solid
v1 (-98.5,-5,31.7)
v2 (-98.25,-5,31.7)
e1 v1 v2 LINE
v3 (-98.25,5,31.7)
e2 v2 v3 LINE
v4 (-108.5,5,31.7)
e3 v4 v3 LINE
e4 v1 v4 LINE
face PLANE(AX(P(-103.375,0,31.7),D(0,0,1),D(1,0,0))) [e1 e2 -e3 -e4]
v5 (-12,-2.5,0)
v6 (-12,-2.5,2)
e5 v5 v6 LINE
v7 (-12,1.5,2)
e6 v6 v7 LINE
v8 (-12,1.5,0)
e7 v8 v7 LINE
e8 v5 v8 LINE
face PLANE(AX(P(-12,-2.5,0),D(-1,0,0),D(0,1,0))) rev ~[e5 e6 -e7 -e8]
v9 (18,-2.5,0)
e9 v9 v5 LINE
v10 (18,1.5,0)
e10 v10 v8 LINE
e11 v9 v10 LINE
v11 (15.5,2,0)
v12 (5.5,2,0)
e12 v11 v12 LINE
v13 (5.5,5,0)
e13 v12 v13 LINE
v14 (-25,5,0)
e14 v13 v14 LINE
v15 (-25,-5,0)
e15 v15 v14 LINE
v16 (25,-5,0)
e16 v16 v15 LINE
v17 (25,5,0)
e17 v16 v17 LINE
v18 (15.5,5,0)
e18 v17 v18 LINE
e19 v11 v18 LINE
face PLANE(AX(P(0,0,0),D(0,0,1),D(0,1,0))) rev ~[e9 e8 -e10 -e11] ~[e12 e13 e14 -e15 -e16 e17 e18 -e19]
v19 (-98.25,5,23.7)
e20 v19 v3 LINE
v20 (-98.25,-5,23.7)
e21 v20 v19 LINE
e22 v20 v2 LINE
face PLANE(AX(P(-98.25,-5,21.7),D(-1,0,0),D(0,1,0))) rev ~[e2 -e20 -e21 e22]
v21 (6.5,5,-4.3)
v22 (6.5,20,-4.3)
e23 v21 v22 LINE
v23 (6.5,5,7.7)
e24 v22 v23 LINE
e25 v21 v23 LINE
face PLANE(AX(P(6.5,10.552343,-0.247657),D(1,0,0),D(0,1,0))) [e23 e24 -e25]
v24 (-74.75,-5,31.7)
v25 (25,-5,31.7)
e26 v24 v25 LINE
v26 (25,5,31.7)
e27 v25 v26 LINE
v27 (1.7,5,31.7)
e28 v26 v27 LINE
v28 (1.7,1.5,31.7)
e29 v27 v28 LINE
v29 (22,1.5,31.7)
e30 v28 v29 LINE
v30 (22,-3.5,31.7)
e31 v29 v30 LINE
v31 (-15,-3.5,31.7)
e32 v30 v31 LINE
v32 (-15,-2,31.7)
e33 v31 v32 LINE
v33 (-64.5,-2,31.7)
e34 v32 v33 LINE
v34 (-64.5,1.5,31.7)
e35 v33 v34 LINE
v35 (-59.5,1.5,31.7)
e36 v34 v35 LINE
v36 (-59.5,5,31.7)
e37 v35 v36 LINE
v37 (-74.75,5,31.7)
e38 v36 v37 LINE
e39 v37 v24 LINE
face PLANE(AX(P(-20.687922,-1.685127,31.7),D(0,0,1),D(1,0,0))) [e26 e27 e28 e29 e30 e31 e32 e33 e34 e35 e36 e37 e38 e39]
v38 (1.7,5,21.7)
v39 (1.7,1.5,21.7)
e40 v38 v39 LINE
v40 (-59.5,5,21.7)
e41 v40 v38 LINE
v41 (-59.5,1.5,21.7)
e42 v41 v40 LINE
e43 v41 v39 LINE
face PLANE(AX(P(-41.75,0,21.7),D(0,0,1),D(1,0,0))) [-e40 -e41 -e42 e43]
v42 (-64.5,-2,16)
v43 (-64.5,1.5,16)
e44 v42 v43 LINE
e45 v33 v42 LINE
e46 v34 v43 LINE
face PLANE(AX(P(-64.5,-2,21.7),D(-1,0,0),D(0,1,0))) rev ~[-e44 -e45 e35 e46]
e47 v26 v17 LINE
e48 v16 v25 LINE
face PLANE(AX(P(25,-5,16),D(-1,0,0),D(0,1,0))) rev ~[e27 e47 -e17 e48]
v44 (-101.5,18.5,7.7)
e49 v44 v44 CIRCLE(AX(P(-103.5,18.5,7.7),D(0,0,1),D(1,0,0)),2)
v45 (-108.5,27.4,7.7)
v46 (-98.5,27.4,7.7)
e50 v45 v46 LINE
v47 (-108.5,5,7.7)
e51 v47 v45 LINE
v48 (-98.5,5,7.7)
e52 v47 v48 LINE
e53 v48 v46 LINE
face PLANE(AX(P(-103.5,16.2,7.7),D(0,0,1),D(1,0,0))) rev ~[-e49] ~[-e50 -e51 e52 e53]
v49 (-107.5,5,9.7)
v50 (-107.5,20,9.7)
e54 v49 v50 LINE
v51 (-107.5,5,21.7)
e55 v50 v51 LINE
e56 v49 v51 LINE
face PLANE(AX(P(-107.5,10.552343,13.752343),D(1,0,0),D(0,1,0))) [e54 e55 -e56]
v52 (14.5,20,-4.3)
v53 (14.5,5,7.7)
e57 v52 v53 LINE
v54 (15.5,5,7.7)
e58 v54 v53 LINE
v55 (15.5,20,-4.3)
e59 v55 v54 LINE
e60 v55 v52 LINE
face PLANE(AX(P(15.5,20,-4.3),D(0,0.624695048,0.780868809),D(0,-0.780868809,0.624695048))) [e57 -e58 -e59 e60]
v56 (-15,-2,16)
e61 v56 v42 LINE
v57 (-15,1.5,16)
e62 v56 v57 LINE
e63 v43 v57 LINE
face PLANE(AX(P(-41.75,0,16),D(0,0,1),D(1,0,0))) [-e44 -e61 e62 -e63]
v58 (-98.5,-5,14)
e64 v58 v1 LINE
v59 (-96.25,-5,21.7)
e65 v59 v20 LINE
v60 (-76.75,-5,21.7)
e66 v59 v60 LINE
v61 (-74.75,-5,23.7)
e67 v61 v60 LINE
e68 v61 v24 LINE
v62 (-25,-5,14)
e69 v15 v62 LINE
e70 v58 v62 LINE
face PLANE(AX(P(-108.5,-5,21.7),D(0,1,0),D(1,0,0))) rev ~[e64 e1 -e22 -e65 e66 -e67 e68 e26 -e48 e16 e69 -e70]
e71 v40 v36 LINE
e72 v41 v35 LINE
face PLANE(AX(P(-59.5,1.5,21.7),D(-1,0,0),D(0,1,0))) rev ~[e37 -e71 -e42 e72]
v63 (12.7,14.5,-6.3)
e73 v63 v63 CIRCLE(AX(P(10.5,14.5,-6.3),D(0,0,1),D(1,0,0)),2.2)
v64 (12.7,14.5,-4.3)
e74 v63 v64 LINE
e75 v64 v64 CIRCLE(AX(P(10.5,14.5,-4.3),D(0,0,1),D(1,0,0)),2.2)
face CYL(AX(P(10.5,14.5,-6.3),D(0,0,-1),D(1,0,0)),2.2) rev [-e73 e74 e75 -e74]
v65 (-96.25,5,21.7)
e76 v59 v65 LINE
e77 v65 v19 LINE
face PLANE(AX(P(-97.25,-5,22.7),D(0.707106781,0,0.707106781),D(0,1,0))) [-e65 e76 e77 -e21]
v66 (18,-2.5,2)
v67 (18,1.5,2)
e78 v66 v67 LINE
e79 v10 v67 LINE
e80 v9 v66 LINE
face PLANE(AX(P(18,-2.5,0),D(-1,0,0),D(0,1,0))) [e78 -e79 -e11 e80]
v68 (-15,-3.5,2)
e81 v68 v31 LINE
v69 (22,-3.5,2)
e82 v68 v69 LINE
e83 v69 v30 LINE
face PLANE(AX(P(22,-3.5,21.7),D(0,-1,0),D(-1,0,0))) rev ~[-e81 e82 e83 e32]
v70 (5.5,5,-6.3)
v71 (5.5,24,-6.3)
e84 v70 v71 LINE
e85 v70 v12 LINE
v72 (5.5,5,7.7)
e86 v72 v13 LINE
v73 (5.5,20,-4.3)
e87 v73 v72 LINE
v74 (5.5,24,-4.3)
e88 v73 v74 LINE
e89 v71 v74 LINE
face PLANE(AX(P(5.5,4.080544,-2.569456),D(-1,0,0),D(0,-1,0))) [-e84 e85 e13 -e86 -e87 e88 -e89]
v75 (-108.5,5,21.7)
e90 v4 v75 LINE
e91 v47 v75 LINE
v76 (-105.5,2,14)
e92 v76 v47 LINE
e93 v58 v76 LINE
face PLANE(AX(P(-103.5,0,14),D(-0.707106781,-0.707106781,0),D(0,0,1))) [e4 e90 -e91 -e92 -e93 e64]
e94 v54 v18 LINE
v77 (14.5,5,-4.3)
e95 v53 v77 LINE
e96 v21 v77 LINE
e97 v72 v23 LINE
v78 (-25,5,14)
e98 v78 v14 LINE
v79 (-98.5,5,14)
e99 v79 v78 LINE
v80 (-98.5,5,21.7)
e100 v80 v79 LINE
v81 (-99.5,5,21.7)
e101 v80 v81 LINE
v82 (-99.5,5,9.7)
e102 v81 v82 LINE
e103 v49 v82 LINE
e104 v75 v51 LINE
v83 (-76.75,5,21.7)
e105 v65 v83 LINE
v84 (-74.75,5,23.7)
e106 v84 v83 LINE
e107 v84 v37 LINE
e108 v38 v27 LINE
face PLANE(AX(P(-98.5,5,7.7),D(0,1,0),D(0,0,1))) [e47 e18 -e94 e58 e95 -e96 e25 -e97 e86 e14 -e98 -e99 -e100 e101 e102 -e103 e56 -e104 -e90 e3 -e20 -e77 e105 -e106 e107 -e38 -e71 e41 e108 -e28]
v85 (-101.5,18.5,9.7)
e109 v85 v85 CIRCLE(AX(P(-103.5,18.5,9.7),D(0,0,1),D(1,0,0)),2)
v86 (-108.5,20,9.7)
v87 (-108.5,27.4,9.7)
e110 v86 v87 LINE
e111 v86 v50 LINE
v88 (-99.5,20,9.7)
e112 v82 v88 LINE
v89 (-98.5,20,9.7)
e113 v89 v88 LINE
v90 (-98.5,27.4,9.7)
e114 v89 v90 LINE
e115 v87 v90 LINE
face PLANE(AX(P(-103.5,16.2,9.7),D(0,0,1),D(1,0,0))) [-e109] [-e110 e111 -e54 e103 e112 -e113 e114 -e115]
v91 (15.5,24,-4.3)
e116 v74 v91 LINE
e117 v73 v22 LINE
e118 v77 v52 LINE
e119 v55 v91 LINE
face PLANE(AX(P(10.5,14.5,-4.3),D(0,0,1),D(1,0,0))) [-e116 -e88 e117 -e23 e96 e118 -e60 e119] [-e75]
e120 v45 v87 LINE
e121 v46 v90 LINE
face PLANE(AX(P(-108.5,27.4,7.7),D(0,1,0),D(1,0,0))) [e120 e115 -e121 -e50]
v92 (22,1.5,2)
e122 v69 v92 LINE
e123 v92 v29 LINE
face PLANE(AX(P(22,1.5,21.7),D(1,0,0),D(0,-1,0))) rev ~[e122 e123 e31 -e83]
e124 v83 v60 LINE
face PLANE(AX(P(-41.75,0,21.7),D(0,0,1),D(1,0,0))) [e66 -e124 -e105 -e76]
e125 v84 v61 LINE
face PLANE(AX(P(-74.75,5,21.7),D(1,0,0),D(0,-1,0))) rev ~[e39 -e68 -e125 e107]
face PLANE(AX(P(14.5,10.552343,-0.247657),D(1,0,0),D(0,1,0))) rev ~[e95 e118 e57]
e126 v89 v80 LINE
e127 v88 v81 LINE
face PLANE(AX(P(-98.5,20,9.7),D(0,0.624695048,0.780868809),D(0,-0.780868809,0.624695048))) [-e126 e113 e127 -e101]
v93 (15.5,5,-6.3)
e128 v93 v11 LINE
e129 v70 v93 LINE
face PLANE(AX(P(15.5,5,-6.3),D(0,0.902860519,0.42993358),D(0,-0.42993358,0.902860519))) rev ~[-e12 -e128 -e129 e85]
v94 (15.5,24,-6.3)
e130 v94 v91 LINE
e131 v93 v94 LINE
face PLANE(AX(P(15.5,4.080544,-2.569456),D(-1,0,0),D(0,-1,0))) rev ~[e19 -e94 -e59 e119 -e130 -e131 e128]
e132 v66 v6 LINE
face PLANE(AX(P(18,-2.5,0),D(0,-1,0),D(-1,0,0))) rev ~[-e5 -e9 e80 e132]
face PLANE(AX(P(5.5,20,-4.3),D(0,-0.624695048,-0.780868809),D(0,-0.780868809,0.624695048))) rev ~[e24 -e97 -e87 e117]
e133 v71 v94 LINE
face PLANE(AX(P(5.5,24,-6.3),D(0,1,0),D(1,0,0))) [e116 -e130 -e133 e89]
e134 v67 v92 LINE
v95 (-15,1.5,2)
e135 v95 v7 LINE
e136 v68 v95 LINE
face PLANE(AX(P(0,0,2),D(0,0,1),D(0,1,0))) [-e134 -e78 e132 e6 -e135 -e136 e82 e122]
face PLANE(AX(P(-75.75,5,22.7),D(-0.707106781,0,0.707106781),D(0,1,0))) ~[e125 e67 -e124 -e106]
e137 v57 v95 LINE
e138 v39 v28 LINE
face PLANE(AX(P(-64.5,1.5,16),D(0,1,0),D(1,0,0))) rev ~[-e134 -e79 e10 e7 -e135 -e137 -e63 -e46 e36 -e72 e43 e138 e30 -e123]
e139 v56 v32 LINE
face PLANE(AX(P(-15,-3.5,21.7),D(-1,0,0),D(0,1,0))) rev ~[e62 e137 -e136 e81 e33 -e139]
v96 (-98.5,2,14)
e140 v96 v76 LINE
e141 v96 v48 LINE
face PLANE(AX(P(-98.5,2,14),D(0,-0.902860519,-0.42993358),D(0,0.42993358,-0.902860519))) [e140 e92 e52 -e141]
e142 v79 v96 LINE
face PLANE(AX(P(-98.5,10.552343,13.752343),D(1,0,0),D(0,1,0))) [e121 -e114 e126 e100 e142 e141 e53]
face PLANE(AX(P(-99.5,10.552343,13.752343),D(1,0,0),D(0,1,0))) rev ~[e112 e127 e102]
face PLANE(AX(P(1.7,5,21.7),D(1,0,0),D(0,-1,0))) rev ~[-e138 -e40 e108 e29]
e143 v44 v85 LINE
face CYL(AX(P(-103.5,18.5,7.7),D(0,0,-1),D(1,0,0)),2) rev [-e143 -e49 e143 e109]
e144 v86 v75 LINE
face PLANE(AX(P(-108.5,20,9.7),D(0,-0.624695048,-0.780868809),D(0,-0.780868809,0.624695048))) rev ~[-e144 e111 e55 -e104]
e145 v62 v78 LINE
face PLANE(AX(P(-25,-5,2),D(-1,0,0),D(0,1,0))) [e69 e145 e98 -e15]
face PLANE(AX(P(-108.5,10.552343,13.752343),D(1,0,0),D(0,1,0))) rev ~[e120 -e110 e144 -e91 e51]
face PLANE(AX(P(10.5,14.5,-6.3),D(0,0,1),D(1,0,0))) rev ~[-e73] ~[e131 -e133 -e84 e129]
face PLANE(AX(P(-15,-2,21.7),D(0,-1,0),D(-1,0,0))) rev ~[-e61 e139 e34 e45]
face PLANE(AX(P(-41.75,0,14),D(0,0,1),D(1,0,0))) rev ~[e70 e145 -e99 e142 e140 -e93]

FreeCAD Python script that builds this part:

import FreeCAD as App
import Part
import Sketcher

V = App.Vector


def edges_at(feature, points):
    """Names of the edges that pass closest to the given points."""
    edges = feature.Shape.Edges
    near = lambda p: min(range(len(edges)), key=lambda i: edges[i].distToShape(Part.Vertex(*p))[0])
    return sorted({f"Edge{near(p) + 1}" for p in points})


def add_polygon(sketch, points):
    """Adds a closed chain of lines whose ends are joined by coincident constraints."""
    first, n = sketch.GeometryCount, len(points)
    for a, b in zip(points, points[1:] + points[:1]):
        sketch.addGeometry(Part.LineSegment(App.Vector(*a, 0), App.Vector(*b, 0)), False)
    for i in range(n):
        sketch.addConstraint(Sketcher.Constraint("Coincident", first + i, 2, first + (i + 1) % n, 1))

doc = App.newDocument("Part")
params = doc.addObject("Spreadsheet::Sheet", "Params")
for row, (alias, value) in enumerate([
    ("sketch1_width", "50 mm"),
    ("sketch1_width2", "30 mm"),
    ("sketch1_height", "10 mm"),
    ("sketch1_height2", "4 mm"),
    ("pad1_length", "2 mm"),
    ("sketch2_width", "50 mm"),
    ("sketch2_width2", "37 mm"),
    ("sketch2_height", "10 mm"),
    ("sketch2_height2", "5 mm"),
    ("pad2_length", "12 mm"),
    ("sketch3_width", "37 mm"),
    ("sketch3_height", "10 mm"),
    ("sketch3_height2", "5 mm"),
    ("sketch3_width2", "133.5 mm"),
    ("pad3_length", "2 mm"),
    ("sketch4_width", "37 mm"),
    ("sketch4_height", "10 mm"),
    ("sketch4_height2", "5 mm"),
    ("sketch4_width2", "133.5 mm"),
    ("sketch4_width3", "49.5 mm"),
    ("pad4_length", "5.7 mm"),
    ("sketch5_width", "5 mm"),
    ("sketch5_width2", "37 mm"),
    ("sketch5_height", "10 mm"),
    ("sketch5_width3", "23.3 mm"),
    ("sketch5_width4", "20.3 mm"),
    ("pad5_length", "10 mm"),
    ("chamfer_size", "2 mm"),
    ("sketch6_diameter", "4.4 mm"),
    ("sketch6_width", "10 mm"),
    ("sketch6_height", "19 mm"),
    ("pad6_length", "2 mm"),
    ("sketch7_diameter", "4 mm"),
    ("sketch7_width", "10 mm"),
    ("sketch7_height", "22.4 mm"),
    ("pad7_length", "2 mm"),
    ("sketch8_width", "15 mm"),
    ("sketch8_height", "12 mm"),
    ("pad8_length", "1 mm"),
    ("sketch9_width", "15 mm"),
    ("sketch9_height", "12 mm"),
    ("pad9_length", "1 mm"),
    ("sketch10_width", "15 mm"),
    ("sketch10_height", "12 mm"),
    ("pad10_length", "1 mm"),
    ("sketch11_width", "15 mm"),
    ("sketch11_height", "12 mm"),
    ("pad11_length", "1 mm"),
    ("sketch12_width", "3 mm"),
    ("sketch12_height", "6.3 mm"),
    ("pad12_length", "10 mm"),
    ("sketch13_width", "3 mm"),
    ("sketch13_height", "6.3 mm"),
    ("pad13_length", "10 mm"),
    ("chamfer2_size", "10 mm"),
], start=1):
    params.set(f"A{row}", alias)
    params.set(f"B{row}", "=" + value)
    params.setAlias(f"B{row}", alias)

body = doc.addObject("PartDesign::Body", "Body")

sketch1 = body.newObject("Sketcher::SketchObject", "Sketch")
sketch1.AttachmentSupport = (doc.getObject("XY_Plane"), [""])
sketch1.MapMode = "FlatFace"
add_polygon(sketch1, [(-25, -5), (25, -5), (25, 5), (-25, 5)])
add_polygon(sketch1, [(18, 1.5), (18, -2.5), (-12, -2.5), (-12, 1.5)])
sketch1.addConstraint(Sketcher.Constraint("Horizontal", 0))
sketch1.addConstraint(Sketcher.Constraint("Vertical", 1))
sketch1.addConstraint(Sketcher.Constraint("Horizontal", 2))
sketch1.addConstraint(Sketcher.Constraint("Vertical", 3))
sketch1.addConstraint(Sketcher.Constraint("Vertical", 4))
sketch1.addConstraint(Sketcher.Constraint("Horizontal", 5))
sketch1.addConstraint(Sketcher.Constraint("Vertical", 6))
sketch1.addConstraint(Sketcher.Constraint("Horizontal", 7))
sketch1.addConstraint(Sketcher.Constraint("Symmetric", 0, 2, 2, 2, -1, 1))
sketch1.addConstraint(Sketcher.Constraint("DistanceX", 0, 1, 0, 2, 50.0))
sketch1.addConstraint(Sketcher.Constraint("DistanceX", 5, 2, 5, 1, 30.0))
sketch1.addConstraint(Sketcher.Constraint("DistanceY", 1, 1, 1, 2, 10.0))
sketch1.addConstraint(Sketcher.Constraint("DistanceY", 4, 2, 4, 1, 4.0))
sketch1.addConstraint(Sketcher.Constraint("DistanceX", -1, 1, 4, 2, 18.0))
sketch1.addConstraint(Sketcher.Constraint("DistanceY", 4, 2, -1, 1, 2.5))
sketch1.setExpression("Constraints[17]", "Params.sketch1_width")
sketch1.setExpression("Constraints[18]", "Params.sketch1_width2")
sketch1.setExpression("Constraints[19]", "Params.sketch1_height")
sketch1.setExpression("Constraints[20]", "Params.sketch1_height2")
pad1 = body.newObject("PartDesign::Pad", "Pad")
pad1.Profile = sketch1
pad1.setExpression("Length", "Params.pad1_length")

sketch2 = body.newObject("Sketcher::SketchObject", "Sketch001")
sketch2.AttachmentSupport = (doc.getObject("XY_Plane"), [""])
sketch2.MapMode = "FlatFace"
sketch2.AttachmentOffset = App.Placement(V(0, 0, 2), App.Rotation())
add_polygon(sketch2, [(-25, 5), (-25, -5), (25, -5), (25, 5)])
add_polygon(sketch2, [(22, -4), (-15, -4), (-15, 2), (22, 2)])
sketch2.addConstraint(Sketcher.Constraint("Vertical", 0))
sketch2.addConstraint(Sketcher.Constraint("Horizontal", 1))
sketch2.addConstraint(Sketcher.Constraint("Vertical", 2))
sketch2.addConstraint(Sketcher.Constraint("Horizontal", 3))
sketch2.addConstraint(Sketcher.Constraint("Horizontal", 4))
sketch2.addConstraint(Sketcher.Constraint("Vertical", 5))
sketch2.addConstraint(Sketcher.Constraint("Horizontal", 6))
sketch2.addConstraint(Sketcher.Constraint("Vertical", 7))
sketch2.addConstraint(Sketcher.Constraint("Symmetric", 0, 2, 2, 2, -1, 1))
sketch2.addConstraint(Sketcher.Constraint("DistanceX", 1, 1, 1, 2, 50.0))
sketch2.addConstraint(Sketcher.Constraint("DistanceX", 4, 2, 4, 1, 37.0))
sketch2.addConstraint(Sketcher.Constraint("DistanceY", 0, 2, 0, 1, 10.0))
sketch2.addConstraint(Sketcher.Constraint("DistanceY", 5, 1, 5, 2, 5.0))
sketch2.addConstraint(Sketcher.Constraint("DistanceX", 4, 2, -1, 1, 15.0))
sketch2.addConstraint(Sketcher.Constraint("DistanceY", 4, 2, -1, 1, 3.5))
sketch2.setExpression("Constraints[17]", "Params.sketch2_width")
sketch2.setExpression("Constraints[18]", "Params.sketch2_width2")
sketch2.setExpression("Constraints[19]", "Params.sketch2_height")
sketch2.setExpression("Constraints[20]", "Params.sketch2_height2")
pad2 = body.newObject("PartDesign::Pad", "Pad001")
pad2.Profile = sketch2
pad2.setExpression("Length", "Params.pad2_length")

sketch3 = body.newObject("Sketcher::SketchObject", "Sketch002")
sketch3.AttachmentSupport = (doc.getObject("XY_Plane"), [""])
sketch3.MapMode = "FlatFace"
sketch3.AttachmentOffset = App.Placement(V(0, 0, 14), App.Rotation())
add_polygon(sketch3, [(-108, 5), (-108, -5), (25, -5), (25, 5)])
add_polygon(sketch3, [(22, -4), (-15, -4), (-15, 2), (22, 2)])
sketch3.addConstraint(Sketcher.Constraint("Vertical", 0))
sketch3.addConstraint(Sketcher.Constraint("Horizontal", 1))
sketch3.addConstraint(Sketcher.Constraint("Vertical", 2))
sketch3.addConstraint(Sketcher.Constraint("Horizontal", 3))
sketch3.addConstraint(Sketcher.Constraint("Horizontal", 4))
sketch3.addConstraint(Sketcher.Constraint("Vertical", 5))
sketch3.addConstraint(Sketcher.Constraint("Horizontal", 6))
sketch3.addConstraint(Sketcher.Constraint("Vertical", 7))
sketch3.addConstraint(Sketcher.Constraint("DistanceX", 4, 2, 4, 1, 37.0))
sketch3.addConstraint(Sketcher.Constraint("DistanceY", 0, 2, 0, 1, 10.0))
sketch3.addConstraint(Sketcher.Constraint("DistanceY", 5, 1, 5, 2, 5.0))
sketch3.addConstraint(Sketcher.Constraint("DistanceX", 1, 1, 1, 2, 133.5))
sketch3.addConstraint(Sketcher.Constraint("DistanceY", 0, 2, -1, 1, 5.0))
sketch3.addConstraint(Sketcher.Constraint("DistanceX", -1, 1, 1, 2, 25.0))
sketch3.addConstraint(Sketcher.Constraint("DistanceX", 4, 2, -1, 1, 15.0))
sketch3.addConstraint(Sketcher.Constraint("DistanceY", 4, 2, -1, 1, 3.5))
sketch3.setExpression("Constraints[16]", "Params.sketch3_width")
sketch3.setExpression("Constraints[17]", "Params.sketch3_height")
sketch3.setExpression("Constraints[18]", "Params.sketch3_height2")
sketch3.setExpression("Constraints[19]", "Params.sketch3_width2")
pad3 = body.newObject("PartDesign::Pad", "Pad002")
pad3.Profile = sketch3
pad3.setExpression("Length", "Params.pad3_length")

sketch4 = body.newObject("Sketcher::SketchObject", "Sketch003")
sketch4.AttachmentSupport = (doc.getObject("XY_Plane"), [""])
sketch4.MapMode = "FlatFace"
sketch4.AttachmentOffset = App.Placement(V(0, 0, 16), App.Rotation())
add_polygon(sketch4, [(-108.5, 5), (-108.5, -5), (25, -5), (25, 5)])
add_polygon(sketch4, [(22, 1.5), (22, -3.5), (-15, -3.5), (-15, -2), (-64.5, -2), (-64.5, 1.5)])
sketch4.addConstraint(Sketcher.Constraint("Vertical", 0))
sketch4.addConstraint(Sketcher.Constraint("Horizontal", 1))
sketch4.addConstraint(Sketcher.Constraint("Vertical", 2))
sketch4.addConstraint(Sketcher.Constraint("Horizontal", 3))
sketch4.addConstraint(Sketcher.Constraint("Vertical", 4))
sketch4.addConstraint(Sketcher.Constraint("Horizontal", 5))
sketch4.addConstraint(Sketcher.Constraint("Vertical", 6))
sketch4.addConstraint(Sketcher.Constraint("Horizontal", 7))
sketch4.addConstraint(Sketcher.Constraint("Vertical", 8))
sketch4.addConstraint(Sketcher.Constraint("Horizontal", 9))
sketch4.addConstraint(Sketcher.Constraint("DistanceX", 5, 2, 5, 1, 37.0))
sketch4.addConstraint(Sketcher.Constraint("DistanceY", 0, 2, 0, 1, 10.0))
sketch4.addConstraint(Sketcher.Constraint("DistanceY", 4, 2, 4, 1, 5.0))
sketch4.addConstraint(Sketcher.Constraint("DistanceX", 1, 1, 1, 2, 133.5))
sketch4.addConstraint(Sketcher.Constraint("DistanceX", 7, 2, 7, 1, 49.5))
sketch4.addConstraint(Sketcher.Constraint("DistanceY", 6, 1, 6, 2, 1.5))
sketch4.addConstraint(Sketcher.Constraint("DistanceY", 0, 2, -1, 1, 5.0))
sketch4.addConstraint(Sketcher.Constraint("DistanceX", -1, 1, 1, 2, 25.0))
sketch4.addConstraint(Sketcher.Constraint("DistanceX", -1, 1, 4, 2, 22.0))
sketch4.addConstraint(Sketcher.Constraint("DistanceY", 6, 2, -1, 1, 2.0))
sketch4.setExpression("Constraints[20]", "Params.sketch4_width")
sketch4.setExpression("Constraints[21]", "Params.sketch4_height")
sketch4.setExpression("Constraints[22]", "Params.sketch4_height2")
sketch4.setExpression("Constraints[23]", "Params.sketch4_width2")
sketch4.setExpression("Constraints[24]", "Params.sketch4_width3")
pad4 = body.newObject("PartDesign::Pad", "Pad003")
pad4.Profile = sketch4
pad4.setExpression("Length", "Params.pad4_length")

sketch5 = body.newObject("Sketcher::SketchObject", "Sketch004")
sketch5.AttachmentSupport = (doc.getObject("XY_Plane"), [""])
sketch5.MapMode = "FlatFace"
sketch5.AttachmentOffset = App.Placement(V(0, 0, 21.7), App.Rotation())
add_polygon(sketch5, [(-108.5, 5), (-108.5, -5), (-98.2, -5), (-98.2, 5)])
add_polygon(sketch5, [(-64.5, -2), (-64.5, 1.5), (-59.5, 1.5), (-59.5, 5), (-74.8, 5), (-74.8, -5), (25, -5), (25, 5), (1.7, 5), (1.7, 1.5), (22, 1.5), (22, -3.5), (-15, -3.5), (-15, -2)])
sketch5.addConstraint(Sketcher.Constraint("Vertical", 0))
sketch5.addConstraint(Sketcher.Constraint("Horizontal", 1))
sketch5.addConstraint(Sketcher.Constraint("Vertical", 2))
sketch5.addConstraint(Sketcher.Constraint("Horizontal", 3))
sketch5.addConstraint(Sketcher.Constraint("Vertical", 4))
sketch5.addConstraint(Sketcher.Constraint("Horizontal", 5))
sketch5.addConstraint(Sketcher.Constraint("Vertical", 6))
sketch5.addConstraint(Sketcher.Constraint("Horizontal", 7))
sketch5.addConstraint(Sketcher.Constraint("Vertical", 8))
sketch5.addConstraint(Sketcher.Constraint("Horizontal", 9))
sketch5.addConstraint(Sketcher.Constraint("Vertical", 10))
sketch5.addConstraint(Sketcher.Constraint("Horizontal", 11))
sketch5.addConstraint(Sketcher.Constraint("Vertical", 12))
sketch5.addConstraint(Sketcher.Constraint("Horizontal", 13))
sketch5.addConstraint(Sketcher.Constraint("Vertical", 14))
sketch5.addConstraint(Sketcher.Constraint("Horizontal", 15))
sketch5.addConstraint(Sketcher.Constraint("Vertical", 16))
sketch5.addConstraint(Sketcher.Constraint("Horizontal", 17))
sketch5.addConstraint(Sketcher.Constraint("Horizontal", 3, 2, 6, 2))
sketch5.addConstraint(Sketcher.Constraint("Horizontal", 1, 2, 8, 2))
sketch5.addConstraint(Sketcher.Constraint("Horizontal", 7, 2, 10, 2))
sketch5.addConstraint(Sketcher.Constraint("Horizontal", 5, 2, 12, 2))
sketch5.addConstraint(Sketcher.Constraint("Equal", 4, 6))
sketch5.addConstraint(Sketcher.Constraint("Equal", 5, 14))
sketch5.addConstraint(Sketcher.Constraint("DistanceX", 5, 1, 5, 2, 5.0))
sketch5.addConstraint(Sketcher.Constraint("DistanceX", 15, 2, 15, 1, 37.0))
sketch5.addConstraint(Sketcher.Constraint("DistanceY", 0, 2, 0, 1, 10.0))
sketch5.addConstraint(Sketcher.Constraint("DistanceX", 11, 2, 11, 1, 23.3))
sketch5.addConstraint(Sketcher.Constraint("DistanceX", 13, 1, 13, 2, 20.3))
sketch5.addConstraint(Sketcher.Constraint("DistanceX", 17, 2, 17, 1, 49.5))
sketch5.addConstraint(Sketcher.Constraint("DistanceY", 4, 1, 4, 2, 3.5))
sketch5.addConstraint(Sketcher.Constraint("DistanceY", 0, 2, -1, 1, 5.0))
sketch5.addConstraint(Sketcher.Constraint("DistanceX", -1, 1, 9, 2, 25.0))
sketch5.addConstraint(Sketcher.Constraint("DistanceX", 3, 2, 4, 2, 44.0))
sketch5.addConstraint(Sketcher.Constraint("DistanceX", 1, 1, 1, 2, 10.25))
sketch5.addConstraint(Sketcher.Constraint("DistanceX", 7, 2, 7, 1, 15.25))
sketch5.setExpression("Constraints[42]", "Params.sketch5_width")
sketch5.setExpression("Constraints[43]", "Params.sketch5_width2")
sketch5.setExpression("Constraints[44]", "Params.sketch5_height")
sketch5.setExpression("Constraints[45]", "Params.sketch5_width3")
sketch5.setExpression("Constraints[46]", "Params.sketch5_width4")
pad5 = body.newObject("PartDesign::Pad", "Pad004")
pad5.Profile = sketch5
pad5.setExpression("Length", "Params.pad5_length")
doc.recompute()

chamfer = body.newObject("PartDesign::Chamfer", "Chamfer")
chamfer.Base = (pad5, edges_at(pad5, [(-98.25, 0, 21.7), (-74.75, 0, 21.7)]))
chamfer.setExpression("Size", "Params.chamfer_size")
body2 = doc.addObject("PartDesign::Body", "Body001")

sketch6 = body2.newObject("Sketcher::SketchObject", "Sketch005")
sketch6.AttachmentSupport = (doc.getObject("XY_Plane001"), [""])
sketch6.MapMode = "FlatFace"
sketch6.AttachmentOffset = App.Placement(V(0, 0, -6.3), App.Rotation())
add_polygon(sketch6, [(5.5, 24), (5.5, 5), (15.5, 5), (15.5, 24)])
sketch6.addGeometry(Part.Circle(V(10.5, 14.5, 0), V(0, 0, 1), 2.2), False)
sketch6.addConstraint(Sketcher.Constraint("Vertical", 0))
sketch6.addConstraint(Sketcher.Constraint("Horizontal", 1))
sketch6.addConstraint(Sketcher.Constraint("Vertical", 2))
sketch6.addConstraint(Sketcher.Constraint("Horizontal", 3))
sketch6.addConstraint(Sketcher.Constraint("Diameter", 4, 4.4))
sketch6.addConstraint(Sketcher.Constraint("DistanceX", 1, 1, 1, 2, 10.0))
sketch6.addConstraint(Sketcher.Constraint("DistanceY", 0, 2, 0, 1, 19.0))
sketch6.addConstraint(Sketcher.Constraint("DistanceY", -1, 1, 0, 2, 5.0))
sketch6.addConstraint(Sketcher.Constraint("DistanceX", 0, 2, 4, 3, 5.0))
sketch6.addConstraint(Sketcher.Constraint("DistanceX", -1, 1, 4, 3, 10.5))
sketch6.addConstraint(Sketcher.Constraint("DistanceY", -1, 1, 4, 3, 14.5))
sketch6.setExpression("Constraints[8]", "Params.sketch6_diameter")
sketch6.setExpression("Constraints[9]", "Params.sketch6_width")
sketch6.setExpression("Constraints[10]", "Params.sketch6_height")
pad6 = body2.newObject("PartDesign::Pad", "Pad005")
pad6.Profile = sketch6
pad6.setExpression("Length", "Params.pad6_length")
body3 = doc.addObject("PartDesign::Body", "Body002")

sketch7 = body3.newObject("Sketcher::SketchObject", "Sketch006")
sketch7.AttachmentSupport = (doc.getObject("XY_Plane002"), [""])
sketch7.MapMode = "FlatFace"
sketch7.AttachmentOffset = App.Placement(V(0, 0, 7.7), App.Rotation())
add_polygon(sketch7, [(-108.5, 27.4), (-108.5, 5), (-98.5, 5), (-98.5, 27.4)])
sketch7.addGeometry(Part.Circle(V(-103.5, 18.5, 0), V(0, 0, 1), 2), False)
sketch7.addConstraint(Sketcher.Constraint("Vertical", 0))
sketch7.addConstraint(Sketcher.Constraint("Horizontal", 1))
sketch7.addConstraint(Sketcher.Constraint("Vertical", 2))
sketch7.addConstraint(Sketcher.Constraint("Horizontal", 3))
sketch7.addConstraint(Sketcher.Constraint("Diameter", 4, 4.0))
sketch7.addConstraint(Sketcher.Constraint("DistanceX", 1, 1, 1, 2, 10.0))
sketch7.addConstraint(Sketcher.Constraint("DistanceY", 0, 2, 0, 1, 22.4))
sketch7.addConstraint(Sketcher.Constraint("DistanceY", -1, 1, 0, 2, 5.0))
sketch7.addConstraint(Sketcher.Constraint("DistanceX", 0, 2, 4, 3, 5.0))
sketch7.addConstraint(Sketcher.Constraint("DistanceX", 4, 3, -1, 1, 103.5))
sketch7.addConstraint(Sketcher.Constraint("DistanceY", -1, 1, 4, 3, 18.5))
sketch7.setExpression("Constraints[8]", "Params.sketch7_diameter")
sketch7.setExpression("Constraints[9]", "Params.sketch7_width")
sketch7.setExpression("Constraints[10]", "Params.sketch7_height")
pad7 = body3.newObject("PartDesign::Pad", "Pad006")
pad7.Profile = sketch7
pad7.setExpression("Length", "Params.pad7_length")
body.AllowCompound = True
doc.recompute()

boolean = body.newObject("PartDesign::Boolean", "Boolean")
boolean.Type = "Fuse"
boolean.addObjects([body2])

sketch8 = body.newObject("Sketcher::SketchObject", "Sketch007")
sketch8.AttachmentSupport = (doc.getObject("YZ_Plane"), [""])
sketch8.MapMode = "FlatFace"
sketch8.AttachmentOffset = App.Placement(V(0, 0, 15.5), App.Rotation())
add_polygon(sketch8, [(5, -4), (20, -4), (5, 8)])
sketch8.addConstraint(Sketcher.Constraint("Horizontal", 0))
sketch8.addConstraint(Sketcher.Constraint("Vertical", 2))
sketch8.addConstraint(Sketcher.Constraint("DistanceX", 0, 1, 0, 2, 15.0))
sketch8.addConstraint(Sketcher.Constraint("DistanceY", 2, 2, 2, 1, 12.0))
sketch8.addConstraint(Sketcher.Constraint("DistanceX", -1, 1, 0, 2, 20.0))
sketch8.addConstraint(Sketcher.Constraint("DistanceY", 0, 2, -1, 1, 4.3))
sketch8.setExpression("Constraints[5]", "Params.sketch8_width")
sketch8.setExpression("Constraints[6]", "Params.sketch8_height")
pad8 = body.newObject("PartDesign::Pad", "Pad007")
pad8.Profile = sketch8
pad8.setExpression("Length", "Params.pad8_length")
pad8.Reversed = True

sketch9 = body.newObject("Sketcher::SketchObject", "Sketch008")
sketch9.AttachmentSupport = (doc.getObject("YZ_Plane"), [""])
sketch9.MapMode = "FlatFace"
sketch9.AttachmentOffset = App.Placement(V(0, 0, 5.5), App.Rotation())
add_polygon(sketch9, [(5, -4), (20, -4), (5, 8)])
sketch9.addConstraint(Sketcher.Constraint("Horizontal", 0))
sketch9.addConstraint(Sketcher.Constraint("Vertical", 2))
sketch9.addConstraint(Sketcher.Constraint("DistanceX", 0, 1, 0, 2, 15.0))
sketch9.addConstraint(Sketcher.Constraint("DistanceY", 2, 2, 2, 1, 12.0))
sketch9.addConstraint(Sketcher.Constraint("DistanceX", -1, 1, 0, 2, 20.0))
sketch9.addConstraint(Sketcher.Constraint("DistanceY", 0, 2, -1, 1, 4.3))
sketch9.setExpression("Constraints[5]", "Params.sketch9_width")
sketch9.setExpression("Constraints[6]", "Params.sketch9_height")
pad9 = body.newObject("PartDesign::Pad", "Pad008")
pad9.Profile = sketch9
pad9.setExpression("Length", "Params.pad9_length")
doc.recompute()

boolean2 = body.newObject("PartDesign::Boolean", "Boolean001")
boolean2.Type = "Fuse"
boolean2.addObjects([body3])

sketch10 = body.newObject("Sketcher::SketchObject", "Sketch009")
sketch10.AttachmentSupport = (doc.getObject("YZ_Plane"), [""])
sketch10.MapMode = "FlatFace"
sketch10.AttachmentOffset = App.Placement(V(0, 0, -98.5), App.Rotation())
add_polygon(sketch10, [(5, 10), (20, 10), (5, 22)])
sketch10.addConstraint(Sketcher.Constraint("Horizontal", 0))
sketch10.addConstraint(Sketcher.Constraint("Vertical", 2))
sketch10.addConstraint(Sketcher.Constraint("DistanceX", 0, 1, 0, 2, 15.0))
sketch10.addConstraint(Sketcher.Constraint("DistanceY", 2, 2, 2, 1, 12.0))
sketch10.addConstraint(Sketcher.Constraint("DistanceX", -1, 1, 0, 2, 20.0))
sketch10.addConstraint(Sketcher.Constraint("DistanceY", -1, 1, 0, 2, 9.7))
sketch10.setExpression("Constraints[5]", "Params.sketch10_width")
sketch10.setExpression("Constraints[6]", "Params.sketch10_height")
pad10 = body.newObject("PartDesign::Pad", "Pad009")
pad10.Profile = sketch10
pad10.setExpression("Length", "Params.pad10_length")
pad10.Reversed = True

sketch11 = body.newObject("Sketcher::SketchObject", "Sketch010")
sketch11.AttachmentSupport = (doc.getObject("YZ_Plane"), [""])
sketch11.MapMode = "FlatFace"
sketch11.AttachmentOffset = App.Placement(V(0, 0, -108.5), App.Rotation())
add_polygon(sketch11, [(5, 10), (20, 10), (5, 22)])
sketch11.addConstraint(Sketcher.Constraint("Horizontal", 0))
sketch11.addConstraint(Sketcher.Constraint("Vertical", 2))
sketch11.addConstraint(Sketcher.Constraint("DistanceX", 0, 1, 0, 2, 15.0))
sketch11.addConstraint(Sketcher.Constraint("DistanceY", 2, 2, 2, 1, 12.0))
sketch11.addConstraint(Sketcher.Constraint("DistanceX", -1, 1, 0, 2, 20.0))
sketch11.addConstraint(Sketcher.Constraint("DistanceY", -1, 1, 0, 2, 9.7))
sketch11.setExpression("Constraints[5]", "Params.sketch11_width")
sketch11.setExpression("Constraints[6]", "Params.sketch11_height")
pad11 = body.newObject("PartDesign::Pad", "Pad010")
pad11.Profile = sketch11
pad11.setExpression("Length", "Params.pad11_length")

sketch12 = body.newObject("Sketcher::SketchObject", "Sketch011")
sketch12.AttachmentSupport = (doc.getObject("YZ_Plane"), [""])
sketch12.MapMode = "FlatFace"
sketch12.AttachmentOffset = App.Placement(V(0, 0, 15.5), App.Rotation())
add_polygon(sketch12, [(2, 0), (5, -6.3), (5, 0)])
sketch12.addConstraint(Sketcher.Constraint("Vertical", 1))
sketch12.addConstraint(Sketcher.Constraint("Horizontal", 2))
sketch12.addConstraint(Sketcher.Constraint("PointOnObject", 1, 2, -1))
sketch12.addConstraint(Sketcher.Constraint("DistanceX", 2, 2, 2, 1, 3.0))
sketch12.addConstraint(Sketcher.Constraint("DistanceY", 1, 1, 1, 2, 6.3))
sketch12.addConstraint(Sketcher.Constraint("DistanceX", -1, 1, 0, 2, 5.0))
sketch12.setExpression("Constraints[6]", "Params.sketch12_width")
sketch12.setExpression("Constraints[7]", "Params.sketch12_height")
pad12 = body.newObject("PartDesign::Pad", "Pad011")
pad12.Profile = sketch12
pad12.setExpression("Length", "Params.pad12_length")
pad12.Reversed = True

sketch13 = body.newObject("Sketcher::SketchObject", "Sketch012")
sketch13.AttachmentSupport = (doc.getObject("YZ_Plane"), [""])
sketch13.MapMode = "FlatFace"
sketch13.AttachmentOffset = App.Placement(V(0, 0, -98.5), App.Rotation())
add_polygon(sketch13, [(5, 7.7), (5, 14), (2, 14)])
sketch13.addConstraint(Sketcher.Constraint("Vertical", 0))
sketch13.addConstraint(Sketcher.Constraint("Horizontal", 1))
sketch13.addConstraint(Sketcher.Constraint("DistanceX", 1, 2, 1, 1, 3.0))
sketch13.addConstraint(Sketcher.Constraint("DistanceY", 0, 1, 0, 2, 6.3))
sketch13.addConstraint(Sketcher.Constraint("DistanceX", -1, 1, 0, 2, 5.0))
sketch13.addConstraint(Sketcher.Constraint("DistanceY", -1, 1, 0, 2, 14.0))
sketch13.setExpression("Constraints[5]", "Params.sketch13_width")
sketch13.setExpression("Constraints[6]", "Params.sketch13_height")
pad13 = body.newObject("PartDesign::Pad", "Pad012")
pad13.Profile = sketch13
pad13.setExpression("Length", "Params.pad13_length")
pad13.Reversed = True
doc.recompute()

chamfer2 = body.newObject("PartDesign::Chamfer", "Chamfer001")
chamfer2.Base = (pad13, edges_at(pad13, [(-108.5, -5, 22.85)]))
chamfer2.setExpression("Size", "Params.chamfer2_size")

doc.recompute()
